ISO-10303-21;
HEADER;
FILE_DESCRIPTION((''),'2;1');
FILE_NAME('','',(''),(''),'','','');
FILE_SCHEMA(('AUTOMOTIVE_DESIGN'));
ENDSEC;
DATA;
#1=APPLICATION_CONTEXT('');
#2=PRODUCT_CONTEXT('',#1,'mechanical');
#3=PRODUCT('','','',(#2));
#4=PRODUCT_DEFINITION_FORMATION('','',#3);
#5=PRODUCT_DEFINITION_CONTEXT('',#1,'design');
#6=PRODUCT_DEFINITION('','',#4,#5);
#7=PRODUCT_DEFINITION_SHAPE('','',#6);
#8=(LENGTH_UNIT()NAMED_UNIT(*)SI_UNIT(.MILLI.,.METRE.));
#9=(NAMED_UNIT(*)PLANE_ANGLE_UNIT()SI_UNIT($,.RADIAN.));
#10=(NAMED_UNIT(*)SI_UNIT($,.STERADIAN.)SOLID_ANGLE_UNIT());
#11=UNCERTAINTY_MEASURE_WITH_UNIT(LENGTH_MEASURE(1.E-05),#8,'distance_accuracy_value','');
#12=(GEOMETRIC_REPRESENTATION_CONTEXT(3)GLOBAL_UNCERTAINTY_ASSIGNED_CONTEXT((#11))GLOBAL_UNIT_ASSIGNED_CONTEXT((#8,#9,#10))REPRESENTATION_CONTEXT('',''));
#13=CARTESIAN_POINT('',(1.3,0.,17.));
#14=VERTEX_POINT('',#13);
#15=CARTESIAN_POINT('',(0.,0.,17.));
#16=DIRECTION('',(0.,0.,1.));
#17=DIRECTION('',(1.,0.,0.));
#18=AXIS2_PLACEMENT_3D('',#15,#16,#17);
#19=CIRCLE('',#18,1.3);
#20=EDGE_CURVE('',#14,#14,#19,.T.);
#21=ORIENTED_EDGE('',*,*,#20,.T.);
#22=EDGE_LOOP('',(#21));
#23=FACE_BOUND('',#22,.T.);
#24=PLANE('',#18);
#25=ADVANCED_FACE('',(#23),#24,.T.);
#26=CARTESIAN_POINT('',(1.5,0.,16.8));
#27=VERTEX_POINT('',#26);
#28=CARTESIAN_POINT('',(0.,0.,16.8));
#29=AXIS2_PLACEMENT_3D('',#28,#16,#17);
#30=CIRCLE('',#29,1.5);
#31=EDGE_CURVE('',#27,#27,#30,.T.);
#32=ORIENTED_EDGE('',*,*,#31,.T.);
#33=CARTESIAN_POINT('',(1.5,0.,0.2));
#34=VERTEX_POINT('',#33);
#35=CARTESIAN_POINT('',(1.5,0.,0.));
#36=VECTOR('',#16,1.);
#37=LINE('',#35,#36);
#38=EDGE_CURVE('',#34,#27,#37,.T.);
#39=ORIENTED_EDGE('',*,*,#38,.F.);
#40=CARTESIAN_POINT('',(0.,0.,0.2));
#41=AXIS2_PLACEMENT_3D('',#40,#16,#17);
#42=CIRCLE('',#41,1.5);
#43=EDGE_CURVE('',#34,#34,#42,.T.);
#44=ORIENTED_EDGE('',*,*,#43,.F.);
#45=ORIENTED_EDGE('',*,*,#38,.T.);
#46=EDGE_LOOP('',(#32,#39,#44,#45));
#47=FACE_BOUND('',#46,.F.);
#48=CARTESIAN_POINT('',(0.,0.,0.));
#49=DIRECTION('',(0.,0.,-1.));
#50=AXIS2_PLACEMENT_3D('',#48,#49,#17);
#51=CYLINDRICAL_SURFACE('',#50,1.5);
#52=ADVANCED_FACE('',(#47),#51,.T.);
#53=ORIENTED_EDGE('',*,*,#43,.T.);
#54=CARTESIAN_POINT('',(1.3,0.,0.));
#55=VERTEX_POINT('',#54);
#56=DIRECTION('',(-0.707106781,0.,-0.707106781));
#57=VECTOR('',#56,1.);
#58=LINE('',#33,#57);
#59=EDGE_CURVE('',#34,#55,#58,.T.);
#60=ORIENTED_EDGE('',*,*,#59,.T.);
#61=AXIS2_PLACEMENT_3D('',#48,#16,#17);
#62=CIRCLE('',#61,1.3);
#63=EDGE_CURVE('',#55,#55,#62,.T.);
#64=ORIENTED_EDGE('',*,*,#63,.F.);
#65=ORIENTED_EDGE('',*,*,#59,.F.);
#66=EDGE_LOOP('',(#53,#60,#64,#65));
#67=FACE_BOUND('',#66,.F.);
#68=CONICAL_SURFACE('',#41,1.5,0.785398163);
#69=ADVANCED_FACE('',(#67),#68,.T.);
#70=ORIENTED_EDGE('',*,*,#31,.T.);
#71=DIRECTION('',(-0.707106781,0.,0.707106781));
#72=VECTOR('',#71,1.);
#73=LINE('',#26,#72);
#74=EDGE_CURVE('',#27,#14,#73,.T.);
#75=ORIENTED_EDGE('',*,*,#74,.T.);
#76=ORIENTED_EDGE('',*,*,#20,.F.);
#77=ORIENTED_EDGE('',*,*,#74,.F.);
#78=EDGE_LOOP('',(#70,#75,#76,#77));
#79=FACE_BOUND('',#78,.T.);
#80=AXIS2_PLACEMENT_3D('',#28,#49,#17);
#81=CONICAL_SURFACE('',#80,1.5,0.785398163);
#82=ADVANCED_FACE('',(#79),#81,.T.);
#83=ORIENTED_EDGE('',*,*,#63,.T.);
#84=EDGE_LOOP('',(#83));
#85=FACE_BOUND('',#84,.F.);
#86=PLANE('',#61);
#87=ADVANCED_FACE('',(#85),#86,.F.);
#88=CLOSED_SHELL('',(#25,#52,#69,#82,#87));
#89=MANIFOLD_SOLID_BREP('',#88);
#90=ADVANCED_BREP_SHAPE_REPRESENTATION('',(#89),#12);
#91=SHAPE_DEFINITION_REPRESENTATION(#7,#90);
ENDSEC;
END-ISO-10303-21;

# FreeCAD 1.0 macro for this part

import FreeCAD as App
import Part
import Sketcher
Q = App.Units.Quantity


def edges_at(feature, points):
    """Names of the edges that pass closest to the given points."""
    edges = feature.Shape.Edges
    near = lambda p: min(range(len(edges)), key=lambda i: edges[i].distToShape(Part.Vertex(*p))[0])
    return sorted({f"Edge{near(p) + 1}" for p in points})

doc = App.newDocument("Part")
params = doc.addObject("Spreadsheet::Sheet", "Params")
for row, (alias, value) in enumerate([
    ("sketch1_diameter", "3 mm"),
    ("pad1_length", "17 mm"),
    ("chamfer_size", "0.2 mm"),
], start=1):
    params.set(f"A{row}", alias)
    params.set(f"B{row}", "=" + value)
    params.setAlias(f"B{row}", alias)

body = doc.addObject("PartDesign::Body", "Body")

sketch1 = body.newObject("Sketcher::SketchObject", "Sketch")
sketch1.AttachmentSupport = (doc.getObject("XY_Plane"), [""])
sketch1.MapMode = "FlatFace"
sketch1.addGeometry(Part.Circle(App.Vector(0, 0, 0), App.Vector(0, 0, 1), 1.5), False)
sketch1.addConstraint([
    Sketcher.Constraint("Coincident", 0, 3, -1, 1),
    Sketcher.Constraint("Diameter", 0, Q("3 mm")),
])
sketch1.setExpression("Constraints[1]", "Params.sketch1_diameter")
pad1 = body.newObject("PartDesign::Pad", "Pad")
pad1.Profile = sketch1
pad1.setExpression("Length", "Params.pad1_length")
doc.recompute()

chamfer = body.newObject("PartDesign::Chamfer", "Chamfer")
chamfer.Base = (pad1, edges_at(pad1, [(-1.5, 0, 17), (-1.5, 0, 0)]))
chamfer.setExpression("Size", "Params.chamfer_size")

doc.recompute()
